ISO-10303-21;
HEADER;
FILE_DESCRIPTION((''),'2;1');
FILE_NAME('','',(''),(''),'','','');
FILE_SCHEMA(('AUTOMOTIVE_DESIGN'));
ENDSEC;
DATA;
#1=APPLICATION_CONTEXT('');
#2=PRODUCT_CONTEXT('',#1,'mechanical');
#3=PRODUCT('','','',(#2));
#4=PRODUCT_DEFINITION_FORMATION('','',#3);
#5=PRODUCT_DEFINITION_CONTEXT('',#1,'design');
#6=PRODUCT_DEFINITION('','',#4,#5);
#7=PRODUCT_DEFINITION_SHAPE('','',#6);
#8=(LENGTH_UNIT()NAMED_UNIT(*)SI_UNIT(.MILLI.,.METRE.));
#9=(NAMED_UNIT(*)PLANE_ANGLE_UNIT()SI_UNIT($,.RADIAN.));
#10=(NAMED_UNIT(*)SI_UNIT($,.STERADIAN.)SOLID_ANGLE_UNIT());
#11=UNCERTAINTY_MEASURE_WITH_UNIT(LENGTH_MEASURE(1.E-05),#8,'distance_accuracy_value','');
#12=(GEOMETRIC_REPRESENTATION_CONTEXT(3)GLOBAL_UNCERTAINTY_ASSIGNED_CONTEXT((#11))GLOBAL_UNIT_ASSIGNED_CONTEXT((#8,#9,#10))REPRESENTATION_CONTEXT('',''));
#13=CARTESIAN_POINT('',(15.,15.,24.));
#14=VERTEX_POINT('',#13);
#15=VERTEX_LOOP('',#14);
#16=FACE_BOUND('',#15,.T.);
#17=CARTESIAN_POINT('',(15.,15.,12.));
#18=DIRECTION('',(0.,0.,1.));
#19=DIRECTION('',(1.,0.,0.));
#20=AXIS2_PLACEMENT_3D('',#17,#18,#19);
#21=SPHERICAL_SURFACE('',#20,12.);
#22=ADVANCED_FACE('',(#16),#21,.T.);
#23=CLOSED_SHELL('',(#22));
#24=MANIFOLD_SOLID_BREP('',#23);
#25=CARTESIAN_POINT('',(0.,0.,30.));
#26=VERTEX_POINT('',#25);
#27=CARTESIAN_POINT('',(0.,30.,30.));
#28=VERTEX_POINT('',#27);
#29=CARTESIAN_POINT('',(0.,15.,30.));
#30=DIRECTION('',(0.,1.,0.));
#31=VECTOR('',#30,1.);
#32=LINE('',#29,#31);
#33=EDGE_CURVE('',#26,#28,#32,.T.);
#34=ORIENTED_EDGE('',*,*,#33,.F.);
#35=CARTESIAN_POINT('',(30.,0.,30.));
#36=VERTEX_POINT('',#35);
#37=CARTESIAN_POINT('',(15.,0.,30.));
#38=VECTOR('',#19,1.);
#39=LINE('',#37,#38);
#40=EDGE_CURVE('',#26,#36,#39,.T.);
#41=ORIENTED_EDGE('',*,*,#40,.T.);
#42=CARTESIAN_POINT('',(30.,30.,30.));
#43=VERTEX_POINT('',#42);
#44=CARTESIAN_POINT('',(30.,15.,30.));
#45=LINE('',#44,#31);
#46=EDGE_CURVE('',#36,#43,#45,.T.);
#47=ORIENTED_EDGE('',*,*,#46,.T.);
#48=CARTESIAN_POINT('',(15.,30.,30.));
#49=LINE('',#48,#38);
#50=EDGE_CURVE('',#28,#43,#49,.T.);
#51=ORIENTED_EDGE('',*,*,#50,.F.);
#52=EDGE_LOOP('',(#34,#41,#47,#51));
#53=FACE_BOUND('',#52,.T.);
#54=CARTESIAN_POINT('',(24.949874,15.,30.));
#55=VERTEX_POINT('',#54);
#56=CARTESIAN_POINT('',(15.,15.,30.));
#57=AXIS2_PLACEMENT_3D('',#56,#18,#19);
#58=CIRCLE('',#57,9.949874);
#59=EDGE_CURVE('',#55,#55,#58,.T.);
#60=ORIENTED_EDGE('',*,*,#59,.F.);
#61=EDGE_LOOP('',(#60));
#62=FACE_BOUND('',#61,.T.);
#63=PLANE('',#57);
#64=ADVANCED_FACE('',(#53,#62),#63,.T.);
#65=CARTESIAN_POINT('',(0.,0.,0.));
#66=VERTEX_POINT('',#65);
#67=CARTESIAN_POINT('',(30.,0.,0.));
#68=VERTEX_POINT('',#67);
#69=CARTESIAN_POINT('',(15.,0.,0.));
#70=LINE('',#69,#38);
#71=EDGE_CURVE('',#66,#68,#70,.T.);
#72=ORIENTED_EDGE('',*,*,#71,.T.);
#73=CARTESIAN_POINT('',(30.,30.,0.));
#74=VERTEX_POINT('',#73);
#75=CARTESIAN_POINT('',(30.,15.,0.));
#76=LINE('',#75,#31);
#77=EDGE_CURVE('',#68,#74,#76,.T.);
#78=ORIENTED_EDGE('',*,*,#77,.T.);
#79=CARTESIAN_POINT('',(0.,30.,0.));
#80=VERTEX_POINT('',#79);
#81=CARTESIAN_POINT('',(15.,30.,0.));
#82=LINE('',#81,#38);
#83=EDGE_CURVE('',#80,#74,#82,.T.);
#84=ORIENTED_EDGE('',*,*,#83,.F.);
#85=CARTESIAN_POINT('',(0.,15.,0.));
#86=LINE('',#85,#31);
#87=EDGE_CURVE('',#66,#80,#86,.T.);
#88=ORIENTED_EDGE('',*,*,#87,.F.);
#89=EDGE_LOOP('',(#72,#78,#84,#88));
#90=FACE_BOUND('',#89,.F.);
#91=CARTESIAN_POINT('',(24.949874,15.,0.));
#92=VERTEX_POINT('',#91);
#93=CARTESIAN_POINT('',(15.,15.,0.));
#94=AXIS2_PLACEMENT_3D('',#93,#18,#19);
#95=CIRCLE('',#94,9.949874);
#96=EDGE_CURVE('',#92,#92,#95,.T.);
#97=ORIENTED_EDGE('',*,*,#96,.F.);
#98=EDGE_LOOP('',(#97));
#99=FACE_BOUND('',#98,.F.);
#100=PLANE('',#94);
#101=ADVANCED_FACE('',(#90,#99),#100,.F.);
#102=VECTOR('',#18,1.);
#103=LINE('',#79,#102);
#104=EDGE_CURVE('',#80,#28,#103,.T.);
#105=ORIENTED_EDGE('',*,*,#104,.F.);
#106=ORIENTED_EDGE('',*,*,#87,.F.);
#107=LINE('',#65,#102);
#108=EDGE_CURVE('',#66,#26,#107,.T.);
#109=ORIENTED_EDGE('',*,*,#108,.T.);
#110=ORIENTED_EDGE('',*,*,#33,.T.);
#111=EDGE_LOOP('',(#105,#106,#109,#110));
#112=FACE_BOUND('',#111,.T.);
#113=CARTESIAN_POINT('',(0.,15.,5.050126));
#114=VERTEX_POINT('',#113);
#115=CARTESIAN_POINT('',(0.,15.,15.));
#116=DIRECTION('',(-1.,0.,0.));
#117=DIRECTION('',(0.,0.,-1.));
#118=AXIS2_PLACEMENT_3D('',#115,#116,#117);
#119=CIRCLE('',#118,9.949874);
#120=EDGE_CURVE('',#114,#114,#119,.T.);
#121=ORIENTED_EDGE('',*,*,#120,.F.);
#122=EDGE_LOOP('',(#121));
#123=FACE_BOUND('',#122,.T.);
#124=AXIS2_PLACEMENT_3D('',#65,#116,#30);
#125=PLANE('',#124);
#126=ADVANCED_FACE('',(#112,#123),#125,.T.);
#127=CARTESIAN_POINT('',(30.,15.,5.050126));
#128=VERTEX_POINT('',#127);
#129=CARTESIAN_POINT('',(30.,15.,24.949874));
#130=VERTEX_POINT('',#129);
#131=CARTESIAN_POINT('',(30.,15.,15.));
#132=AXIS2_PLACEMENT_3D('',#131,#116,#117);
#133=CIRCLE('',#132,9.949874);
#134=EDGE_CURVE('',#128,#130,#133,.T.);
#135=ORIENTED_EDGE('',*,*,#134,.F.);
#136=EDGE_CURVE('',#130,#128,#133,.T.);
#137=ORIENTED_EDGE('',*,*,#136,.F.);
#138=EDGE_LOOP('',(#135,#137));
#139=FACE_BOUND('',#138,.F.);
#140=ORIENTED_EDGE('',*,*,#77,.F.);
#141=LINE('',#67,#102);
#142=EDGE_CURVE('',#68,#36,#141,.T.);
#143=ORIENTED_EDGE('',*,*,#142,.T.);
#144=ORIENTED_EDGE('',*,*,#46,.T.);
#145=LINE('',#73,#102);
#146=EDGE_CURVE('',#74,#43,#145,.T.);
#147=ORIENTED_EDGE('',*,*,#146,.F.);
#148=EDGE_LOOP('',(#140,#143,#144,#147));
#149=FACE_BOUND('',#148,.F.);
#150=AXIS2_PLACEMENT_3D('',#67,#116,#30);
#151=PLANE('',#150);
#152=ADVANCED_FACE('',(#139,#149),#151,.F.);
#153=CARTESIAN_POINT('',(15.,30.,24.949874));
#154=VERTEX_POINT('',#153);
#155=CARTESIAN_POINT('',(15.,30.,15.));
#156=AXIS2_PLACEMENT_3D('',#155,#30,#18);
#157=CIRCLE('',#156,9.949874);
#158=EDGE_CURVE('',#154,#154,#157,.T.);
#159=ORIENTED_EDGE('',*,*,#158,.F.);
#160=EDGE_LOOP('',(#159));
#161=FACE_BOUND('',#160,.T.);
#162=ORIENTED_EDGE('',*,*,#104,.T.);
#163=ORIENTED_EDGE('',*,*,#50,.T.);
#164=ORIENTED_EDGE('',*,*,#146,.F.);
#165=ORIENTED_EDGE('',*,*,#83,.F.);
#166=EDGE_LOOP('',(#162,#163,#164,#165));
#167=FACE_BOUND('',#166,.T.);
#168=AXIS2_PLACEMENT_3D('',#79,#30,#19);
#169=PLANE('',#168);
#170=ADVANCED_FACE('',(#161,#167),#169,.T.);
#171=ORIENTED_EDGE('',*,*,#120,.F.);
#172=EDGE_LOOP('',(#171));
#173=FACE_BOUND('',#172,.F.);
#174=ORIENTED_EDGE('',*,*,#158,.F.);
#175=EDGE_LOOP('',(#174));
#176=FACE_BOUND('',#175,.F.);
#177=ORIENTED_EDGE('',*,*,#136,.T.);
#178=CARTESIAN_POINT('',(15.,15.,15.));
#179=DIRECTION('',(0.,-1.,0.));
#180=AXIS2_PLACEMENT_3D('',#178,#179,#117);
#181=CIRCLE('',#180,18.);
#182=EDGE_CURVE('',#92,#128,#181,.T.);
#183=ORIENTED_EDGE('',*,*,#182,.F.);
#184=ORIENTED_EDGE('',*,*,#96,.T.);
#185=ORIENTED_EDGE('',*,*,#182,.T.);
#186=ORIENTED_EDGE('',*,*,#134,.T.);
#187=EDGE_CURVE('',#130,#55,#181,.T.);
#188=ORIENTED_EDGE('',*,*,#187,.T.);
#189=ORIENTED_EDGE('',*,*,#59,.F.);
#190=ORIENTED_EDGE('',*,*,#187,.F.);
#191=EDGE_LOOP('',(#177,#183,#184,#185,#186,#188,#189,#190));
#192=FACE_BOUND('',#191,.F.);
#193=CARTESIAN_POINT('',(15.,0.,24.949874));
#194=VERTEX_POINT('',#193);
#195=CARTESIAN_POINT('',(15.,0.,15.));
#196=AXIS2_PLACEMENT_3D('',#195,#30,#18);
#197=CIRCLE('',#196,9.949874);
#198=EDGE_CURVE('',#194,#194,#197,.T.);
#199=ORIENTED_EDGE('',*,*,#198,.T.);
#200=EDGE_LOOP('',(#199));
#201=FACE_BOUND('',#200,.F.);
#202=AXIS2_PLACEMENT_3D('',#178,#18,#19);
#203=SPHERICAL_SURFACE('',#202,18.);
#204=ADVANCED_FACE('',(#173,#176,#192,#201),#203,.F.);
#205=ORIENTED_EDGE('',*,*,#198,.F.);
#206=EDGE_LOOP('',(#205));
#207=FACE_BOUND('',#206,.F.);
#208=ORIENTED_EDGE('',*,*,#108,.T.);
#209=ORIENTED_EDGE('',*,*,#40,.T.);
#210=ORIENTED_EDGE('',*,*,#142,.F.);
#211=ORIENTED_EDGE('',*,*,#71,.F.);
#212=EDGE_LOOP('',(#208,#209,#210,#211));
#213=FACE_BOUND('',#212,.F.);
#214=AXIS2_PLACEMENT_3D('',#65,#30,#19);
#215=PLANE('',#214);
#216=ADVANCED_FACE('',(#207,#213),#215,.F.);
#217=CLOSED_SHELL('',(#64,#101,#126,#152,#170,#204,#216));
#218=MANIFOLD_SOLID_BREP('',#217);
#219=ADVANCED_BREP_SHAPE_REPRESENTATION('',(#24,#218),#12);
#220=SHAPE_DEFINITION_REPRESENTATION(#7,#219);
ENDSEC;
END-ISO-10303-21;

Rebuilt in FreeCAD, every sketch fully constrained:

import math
import FreeCAD as App
import Part
import Sketcher

V = App.Vector


def add_polygon(sketch, points):
    """Adds a closed chain of lines whose ends are joined by coincident constraints."""
    first, n = sketch.GeometryCount, len(points)
    for a, b in zip(points, points[1:] + points[:1]):
        sketch.addGeometry(Part.LineSegment(App.Vector(*a, 0), App.Vector(*b, 0)), False)
    for i in range(n):
        sketch.addConstraint(Sketcher.Constraint("Coincident", first + i, 2, first + (i + 1) % n, 1))

doc = App.newDocument("Part")
body = doc.addObject("PartDesign::Body", "Body")

# Sketch on XZ plane
sketch1 = body.newObject("Sketcher::SketchObject", "Sketch")
sketch1.AttachmentSupport = (doc.getObject("XZ_Plane"), [""])
sketch1.MapMode = "FlatFace"
sketch1.AttachmentOffset = App.Placement(V(0, 0, -15), App.Rotation())
sketch1.addGeometry([
    Part.ArcOfCircle(Part.Circle(V(15, 15, 0), V(0, 0, 1), 18), math.radians(-90), math.radians(90)),
    Part.LineSegment(V(15, 33, 0), V(15, -3, 0)),
], False)
sketch1.addGeometry(Part.LineSegment(V(15, -3, 0), V(15, 33, 0)), True)  # axis
sketch1.addConstraint([
    Sketcher.Constraint("Coincident", 0, 1, 1, 2),
    Sketcher.Constraint("Coincident", 1, 1, 0, 2),
    Sketcher.Constraint("Vertical", 1),
    Sketcher.Constraint("Vertical", 2),
    Sketcher.Constraint("Coincident", 2, 1, 0, 1),
    Sketcher.Constraint("Equal", 1, 2),
    Sketcher.Constraint("Radius", 0, 18.0),
    Sketcher.Constraint("DistanceX", -1, 1, 0, 3, 15.0),
    Sketcher.Constraint("DistanceY", -1, 1, 0, 3, 15.0),
    Sketcher.Constraint("DistanceX", -1, 1, 0, 1, 15.0),
])
revolution = body.newObject("PartDesign::Revolution", "Revolution")
revolution.Profile = sketch1
revolution.ReferenceAxis = (sketch1, ["Axis0"])
revolution.Angle = 360
body2 = doc.addObject("PartDesign::Body", "Body001")

# Sketch on XY plane
sketch2 = body2.newObject("Sketcher::SketchObject", "Sketch001")
sketch2.AttachmentSupport = (doc.getObject("XY_Plane001"), [""])
sketch2.MapMode = "FlatFace"
add_polygon(sketch2, [(0, 30), (0, 0), (30, 0), (30, 30)])  # lines 0-3
sketch2.addConstraint([
    Sketcher.Constraint("Vertical", 0),
    Sketcher.Constraint("Horizontal", 1),
    Sketcher.Constraint("Vertical", 2),
    Sketcher.Constraint("Horizontal", 3),
    Sketcher.Constraint("Coincident", 0, 2, -1, 1),
    Sketcher.Constraint("Equal", 3, 0),
    Sketcher.Constraint("DistanceX", 1, 1, 1, 2, 30.0),
])
pad1 = body2.newObject("PartDesign::Pad", "Pad")
pad1.Profile = sketch2
pad1.Length = 30
doc.recompute()

boolean = body2.newObject("PartDesign::Boolean", "Boolean")
boolean.Type = "Cut"
boolean.addObjects([body])
body3 = doc.addObject("PartDesign::Body", "Body002")

# Sketch on XZ plane
sketch3 = body3.newObject("Sketcher::SketchObject", "Sketch002")
sketch3.AttachmentSupport = (doc.getObject("XZ_Plane002"), [""])
sketch3.MapMode = "FlatFace"
sketch3.AttachmentOffset = App.Placement(V(0, 0, -15), App.Rotation())
sketch3.addGeometry([
    Part.ArcOfCircle(Part.Circle(V(15, 12, 0), V(0, 0, 1), 12), math.radians(-90), math.radians(90)),
    Part.LineSegment(V(15, 24, 0), V(15, 0, 0)),
], False)
sketch3.addGeometry(Part.LineSegment(V(15, 0, 0), V(15, 24, 0)), True)  # axis
sketch3.addConstraint([
    Sketcher.Constraint("Coincident", 0, 1, 1, 2),
    Sketcher.Constraint("Coincident", 1, 1, 0, 2),
    Sketcher.Constraint("Vertical", 1),
    Sketcher.Constraint("Vertical", 2),
    Sketcher.Constraint("Coincident", 2, 1, 0, 1),
    Sketcher.Constraint("PointOnObject", 0, 1, -1),
    Sketcher.Constraint("Equal", 1, 2),
    Sketcher.Constraint("Radius", 0, 12.0),
    Sketcher.Constraint("DistanceX", -1, 1, 0, 3, 15.0),
    Sketcher.Constraint("DistanceX", -1, 1, 0, 1, 15.0),
])
revolution2 = body3.newObject("PartDesign::Revolution", "Revolution001")
revolution2.Profile = sketch3
revolution2.ReferenceAxis = (sketch3, ["Axis0"])
revolution2.Angle = 360

doc.recompute()
